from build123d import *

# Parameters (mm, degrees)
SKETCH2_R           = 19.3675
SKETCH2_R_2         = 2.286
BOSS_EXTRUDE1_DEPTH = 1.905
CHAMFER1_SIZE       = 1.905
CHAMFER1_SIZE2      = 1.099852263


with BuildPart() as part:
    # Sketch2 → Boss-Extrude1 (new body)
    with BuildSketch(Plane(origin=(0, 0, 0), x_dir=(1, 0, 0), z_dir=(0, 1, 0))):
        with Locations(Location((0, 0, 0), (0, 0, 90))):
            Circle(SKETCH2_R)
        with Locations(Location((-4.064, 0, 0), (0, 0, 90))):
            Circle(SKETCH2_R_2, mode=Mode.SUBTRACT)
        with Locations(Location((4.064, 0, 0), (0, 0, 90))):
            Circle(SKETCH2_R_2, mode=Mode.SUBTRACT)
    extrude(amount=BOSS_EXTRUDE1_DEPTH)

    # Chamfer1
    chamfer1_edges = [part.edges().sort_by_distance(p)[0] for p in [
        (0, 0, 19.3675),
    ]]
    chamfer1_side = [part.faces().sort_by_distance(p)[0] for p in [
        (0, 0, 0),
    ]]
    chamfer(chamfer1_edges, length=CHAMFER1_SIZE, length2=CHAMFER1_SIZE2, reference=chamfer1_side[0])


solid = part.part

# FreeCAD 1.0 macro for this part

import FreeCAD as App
import Part
import Sketcher
from FreeCAD import Vector
Q = App.Units.Quantity


def edges_at(feature, points):
    """Names of the edges that pass closest to the given points."""
    edges = feature.Shape.Edges
    near = lambda p: min(range(len(edges)), key=lambda i: edges[i].distToShape(Part.Vertex(*p))[0])
    return sorted({f"Edge{near(p) + 1}" for p in points})

doc = App.newDocument("Part")
body = doc.addObject("PartDesign::Body", "Body")

# Sketch on XZ plane
sketch1 = body.newObject("Sketcher::SketchObject", "Sketch")
sketch1.AttachmentSupport = (doc.getObject("XZ_Plane"), [""])
sketch1.MapMode = "FlatFace"
sketch1.addGeometry(Part.Circle(Vector(0, 0, 0), Vector(0, 0, 1), 19.3675), False)
sketch1.addGeometry(Part.Circle(Vector(4.064, 0, 0), Vector(0, 0, 1), 2.286), False)
sketch1.addGeometry(Part.Circle(Vector(-4.064, 0, 0), Vector(0, 0, 1), 2.286), False)
sketch1.addConstraint(Sketcher.Constraint("Coincident", 0, 3, -1, 1))
sketch1.addConstraint(Sketcher.Constraint("Equal", 1, 2))
sketch1.addConstraint(Sketcher.Constraint("Symmetric", 1, 3, 2, 3, -1, 1))
sketch1.addConstraint(Sketcher.Constraint("PointOnObject", 1, 3, -1))
sketch1.addConstraint(Sketcher.Constraint("Diameter", 1, Q("0.18 in")))
sketch1.addConstraint(Sketcher.Constraint("Diameter", 0, Q("1.525 in")))
sketch1.addConstraint(Sketcher.Constraint("DistanceX", -1, 1, 1, 3, Q("0.16 in")))
pad1 = body.newObject("PartDesign::Pad", "Pad")
pad1.Profile = sketch1
pad1.Length = Q("0.075 in")
pad1.Reversed = True
doc.recompute()

chamfer = body.newObject("PartDesign::Chamfer", "Chamfer")
chamfer.Base = (pad1, edges_at(pad1, [(0, 0, 19.367)]))
chamfer.ChamferType = "Two distances"
chamfer.Size = Q("0.075 in")
chamfer.Size2 = 1.099852
chamfer.FlipDirection = True

doc.recompute()
